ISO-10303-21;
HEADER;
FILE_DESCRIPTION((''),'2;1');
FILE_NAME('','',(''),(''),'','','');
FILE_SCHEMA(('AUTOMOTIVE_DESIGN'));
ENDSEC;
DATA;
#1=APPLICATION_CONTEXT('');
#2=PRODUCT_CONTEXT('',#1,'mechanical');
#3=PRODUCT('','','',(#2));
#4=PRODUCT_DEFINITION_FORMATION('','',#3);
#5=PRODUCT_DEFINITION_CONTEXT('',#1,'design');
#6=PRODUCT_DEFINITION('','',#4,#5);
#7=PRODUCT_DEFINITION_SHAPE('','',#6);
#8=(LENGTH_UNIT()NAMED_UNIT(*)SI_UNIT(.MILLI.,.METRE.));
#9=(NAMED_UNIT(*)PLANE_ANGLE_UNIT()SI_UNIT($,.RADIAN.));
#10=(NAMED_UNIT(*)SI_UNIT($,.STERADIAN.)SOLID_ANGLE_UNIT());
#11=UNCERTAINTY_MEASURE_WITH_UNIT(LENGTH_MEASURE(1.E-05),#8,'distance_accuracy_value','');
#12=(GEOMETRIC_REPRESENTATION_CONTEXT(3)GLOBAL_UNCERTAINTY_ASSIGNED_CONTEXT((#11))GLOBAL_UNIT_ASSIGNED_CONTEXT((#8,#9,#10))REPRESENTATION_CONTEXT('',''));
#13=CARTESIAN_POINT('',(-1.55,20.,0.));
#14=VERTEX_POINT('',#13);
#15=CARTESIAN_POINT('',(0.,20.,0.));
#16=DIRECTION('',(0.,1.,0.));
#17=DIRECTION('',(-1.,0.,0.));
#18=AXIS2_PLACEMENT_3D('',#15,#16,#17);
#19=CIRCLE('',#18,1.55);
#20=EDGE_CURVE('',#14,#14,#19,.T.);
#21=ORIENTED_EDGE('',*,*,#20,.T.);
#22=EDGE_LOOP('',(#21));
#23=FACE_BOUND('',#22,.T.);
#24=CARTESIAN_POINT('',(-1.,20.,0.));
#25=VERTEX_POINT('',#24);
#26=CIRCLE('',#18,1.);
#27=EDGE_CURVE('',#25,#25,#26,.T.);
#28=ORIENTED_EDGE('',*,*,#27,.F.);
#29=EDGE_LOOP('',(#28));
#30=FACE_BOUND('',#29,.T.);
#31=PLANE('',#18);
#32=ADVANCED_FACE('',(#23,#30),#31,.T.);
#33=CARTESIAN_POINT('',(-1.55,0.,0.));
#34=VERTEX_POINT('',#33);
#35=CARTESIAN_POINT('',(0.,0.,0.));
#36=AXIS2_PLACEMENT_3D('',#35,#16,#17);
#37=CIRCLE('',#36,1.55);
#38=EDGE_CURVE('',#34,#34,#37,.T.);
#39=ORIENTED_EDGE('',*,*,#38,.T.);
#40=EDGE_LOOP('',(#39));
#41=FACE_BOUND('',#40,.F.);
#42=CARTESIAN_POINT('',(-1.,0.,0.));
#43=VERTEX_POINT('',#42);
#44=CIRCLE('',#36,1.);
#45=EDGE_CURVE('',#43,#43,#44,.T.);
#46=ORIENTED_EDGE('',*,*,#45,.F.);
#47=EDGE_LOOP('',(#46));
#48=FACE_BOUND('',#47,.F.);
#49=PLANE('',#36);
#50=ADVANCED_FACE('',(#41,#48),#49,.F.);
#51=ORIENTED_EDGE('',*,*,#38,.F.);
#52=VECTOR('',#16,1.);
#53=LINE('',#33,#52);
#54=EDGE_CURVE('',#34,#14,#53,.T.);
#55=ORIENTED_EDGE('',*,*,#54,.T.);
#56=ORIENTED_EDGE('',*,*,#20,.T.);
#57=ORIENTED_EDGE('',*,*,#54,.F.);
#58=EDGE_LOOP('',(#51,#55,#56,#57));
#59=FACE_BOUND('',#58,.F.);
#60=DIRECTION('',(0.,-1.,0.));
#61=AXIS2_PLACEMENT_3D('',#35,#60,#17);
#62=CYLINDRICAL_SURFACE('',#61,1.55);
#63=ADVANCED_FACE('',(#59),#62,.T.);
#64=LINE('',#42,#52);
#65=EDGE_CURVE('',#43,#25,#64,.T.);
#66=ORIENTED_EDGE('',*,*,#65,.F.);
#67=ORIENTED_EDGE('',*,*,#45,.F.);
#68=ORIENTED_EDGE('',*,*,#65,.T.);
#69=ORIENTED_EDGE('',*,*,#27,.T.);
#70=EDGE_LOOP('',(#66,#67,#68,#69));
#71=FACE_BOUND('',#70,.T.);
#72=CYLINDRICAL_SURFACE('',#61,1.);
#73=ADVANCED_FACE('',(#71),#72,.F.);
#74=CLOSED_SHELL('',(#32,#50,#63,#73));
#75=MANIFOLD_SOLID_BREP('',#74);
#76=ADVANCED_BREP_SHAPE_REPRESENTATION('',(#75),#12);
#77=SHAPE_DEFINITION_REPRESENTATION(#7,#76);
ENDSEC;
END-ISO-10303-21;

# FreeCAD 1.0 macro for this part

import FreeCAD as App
import Part
import Sketcher
from FreeCAD import Vector

doc = App.newDocument("Part")
body = doc.addObject("PartDesign::Body", "Body")

# Sketch on XZ plane
sketch1 = body.newObject("Sketcher::SketchObject", "Sketch")
sketch1.AttachmentSupport = (doc.getObject("XZ_Plane"), [""])
sketch1.MapMode = "FlatFace"
sketch1.addGeometry(Part.Circle(Vector(0, 0, 0), Vector(0, 0, 1), 1.6), False)
sketch1.addGeometry(Part.Circle(Vector(0, 0, 0), Vector(0, 0, 1), 1), False)
sketch1.addConstraint(Sketcher.Constraint("Coincident", 0, 3, -1, 1))
sketch1.addConstraint(Sketcher.Constraint("Coincident", 1, 3, -1, 1))
sketch1.addConstraint(Sketcher.Constraint("Diameter", 1, 2.0))
sketch1.addConstraint(Sketcher.Constraint("Diameter", 0, 3.1))
pad1 = body.newObject("PartDesign::Pad", "Pad")
pad1.Profile = sketch1
pad1.Length = 20
pad1.Reversed = True

doc.recompute()
